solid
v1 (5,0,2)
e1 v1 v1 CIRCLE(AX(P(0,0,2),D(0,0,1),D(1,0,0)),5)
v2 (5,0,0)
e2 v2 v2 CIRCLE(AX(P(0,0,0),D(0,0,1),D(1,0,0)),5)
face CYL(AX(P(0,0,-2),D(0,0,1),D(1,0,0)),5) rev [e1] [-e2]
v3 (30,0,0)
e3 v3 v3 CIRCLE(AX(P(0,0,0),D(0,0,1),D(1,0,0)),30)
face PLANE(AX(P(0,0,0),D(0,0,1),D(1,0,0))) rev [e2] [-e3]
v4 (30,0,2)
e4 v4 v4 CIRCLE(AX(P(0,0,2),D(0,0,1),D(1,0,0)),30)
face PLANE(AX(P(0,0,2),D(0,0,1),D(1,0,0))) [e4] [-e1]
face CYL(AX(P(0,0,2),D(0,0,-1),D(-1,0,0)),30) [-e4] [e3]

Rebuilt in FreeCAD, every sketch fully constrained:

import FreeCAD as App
import Part
import Sketcher
from FreeCAD import Vector

doc = App.newDocument("Part")
body = doc.addObject("PartDesign::Body", "Body")

sketch1 = body.newObject("Sketcher::SketchObject", "Sketch")
sketch1.AttachmentSupport = (doc.getObject("XY_Plane"), [""])
sketch1.MapMode = "FlatFace"
sketch1.addGeometry(Part.Circle(Vector(0, 0, 0), Vector(0, 0, 1), 30), False)
sketch1.addConstraint([
    Sketcher.Constraint("Coincident", 0, 3, -1, 1),
    Sketcher.Constraint("Diameter", 0, 60.0),
])
pad1 = body.newObject("PartDesign::Pad", "Pad")
pad1.Profile = sketch1
pad1.Length = 2

sketch2 = body.newObject("Sketcher::SketchObject", "Sketch001")
sketch2.AttachmentSupport = (doc.getObject("XY_Plane"), [""])
sketch2.MapMode = "FlatFace"
sketch2.AttachmentOffset = App.Placement(Vector(0, 0, 2), App.Rotation())
sketch2.addGeometry(Part.Circle(Vector(0, 0, 0), Vector(0, 0, 1), 5), False)
sketch2.addConstraint([
    Sketcher.Constraint("Coincident", 0, 3, -1, 1),
    Sketcher.Constraint("Diameter", 0, 10.0),
])
pocket1 = body.newObject("PartDesign::Pocket", "Pocket")
pocket1.Profile = sketch2
pocket1.Length = 4

doc.recompute()
